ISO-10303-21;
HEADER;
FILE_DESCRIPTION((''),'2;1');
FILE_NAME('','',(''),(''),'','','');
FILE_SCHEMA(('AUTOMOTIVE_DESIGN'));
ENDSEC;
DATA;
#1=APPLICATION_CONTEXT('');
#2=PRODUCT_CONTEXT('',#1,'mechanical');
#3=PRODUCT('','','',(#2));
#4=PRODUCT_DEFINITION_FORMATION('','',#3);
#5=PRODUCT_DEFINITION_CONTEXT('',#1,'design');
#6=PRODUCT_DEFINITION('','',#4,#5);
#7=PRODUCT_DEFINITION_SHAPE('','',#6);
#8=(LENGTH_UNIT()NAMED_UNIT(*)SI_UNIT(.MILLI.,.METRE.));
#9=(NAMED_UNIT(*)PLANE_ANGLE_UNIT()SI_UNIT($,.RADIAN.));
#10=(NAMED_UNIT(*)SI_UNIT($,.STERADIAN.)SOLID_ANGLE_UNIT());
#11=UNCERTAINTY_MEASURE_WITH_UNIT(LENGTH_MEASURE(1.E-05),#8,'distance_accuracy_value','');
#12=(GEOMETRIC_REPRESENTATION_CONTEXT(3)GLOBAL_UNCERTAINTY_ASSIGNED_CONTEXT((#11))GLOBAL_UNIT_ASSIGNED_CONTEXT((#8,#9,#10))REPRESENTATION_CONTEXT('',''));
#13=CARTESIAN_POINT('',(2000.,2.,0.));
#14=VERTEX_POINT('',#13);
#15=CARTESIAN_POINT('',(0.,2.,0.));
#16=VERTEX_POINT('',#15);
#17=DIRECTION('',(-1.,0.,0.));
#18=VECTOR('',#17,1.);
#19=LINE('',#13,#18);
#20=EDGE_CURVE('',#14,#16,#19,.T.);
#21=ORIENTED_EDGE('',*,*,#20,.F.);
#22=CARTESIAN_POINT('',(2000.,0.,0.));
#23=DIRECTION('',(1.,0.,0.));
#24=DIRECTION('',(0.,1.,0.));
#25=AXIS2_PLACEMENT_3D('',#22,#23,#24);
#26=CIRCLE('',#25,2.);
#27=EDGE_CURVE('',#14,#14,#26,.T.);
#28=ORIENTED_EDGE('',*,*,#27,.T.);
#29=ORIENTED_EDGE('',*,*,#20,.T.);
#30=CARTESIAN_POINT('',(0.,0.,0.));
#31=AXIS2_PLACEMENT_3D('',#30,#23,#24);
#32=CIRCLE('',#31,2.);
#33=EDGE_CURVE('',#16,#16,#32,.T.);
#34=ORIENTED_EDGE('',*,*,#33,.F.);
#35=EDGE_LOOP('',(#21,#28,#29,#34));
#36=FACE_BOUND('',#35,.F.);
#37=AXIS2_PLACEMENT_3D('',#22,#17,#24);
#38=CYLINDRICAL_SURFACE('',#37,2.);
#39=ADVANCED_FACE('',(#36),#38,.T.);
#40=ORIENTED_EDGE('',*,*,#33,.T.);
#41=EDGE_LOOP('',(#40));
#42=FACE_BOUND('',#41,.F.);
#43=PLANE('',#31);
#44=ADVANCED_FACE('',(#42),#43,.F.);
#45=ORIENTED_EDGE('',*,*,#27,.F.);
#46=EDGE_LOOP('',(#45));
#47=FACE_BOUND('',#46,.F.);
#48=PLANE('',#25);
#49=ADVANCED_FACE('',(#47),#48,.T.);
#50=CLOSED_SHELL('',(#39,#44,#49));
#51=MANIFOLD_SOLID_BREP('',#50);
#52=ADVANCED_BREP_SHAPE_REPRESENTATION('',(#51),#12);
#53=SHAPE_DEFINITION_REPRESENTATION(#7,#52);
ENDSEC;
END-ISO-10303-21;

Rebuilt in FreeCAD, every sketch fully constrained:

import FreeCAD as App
import Part
import Sketcher
Q = App.Units.Quantity


def add_polygon(sketch, points):
    """Adds a closed chain of lines whose ends are joined by coincident constraints."""
    first, n = sketch.GeometryCount, len(points)
    for a, b in zip(points, points[1:] + points[:1]):
        sketch.addGeometry(Part.LineSegment(App.Vector(*a, 0), App.Vector(*b, 0)), False)
    for i in range(n):
        sketch.addConstraint(Sketcher.Constraint("Coincident", first + i, 2, first + (i + 1) % n, 1))

doc = App.newDocument("Part")
body = doc.addObject("PartDesign::Body", "Body")

# Sketch on XY plane
sketch1 = body.newObject("Sketcher::SketchObject", "Sketch")
sketch1.AttachmentSupport = (doc.getObject("XY_Plane"), [""])
sketch1.MapMode = "FlatFace"
add_polygon(sketch1, [(0, 2), (0, 0), (2000, 0), (2000, 2)])  # lines 0-3
sketch1.addConstraint([
    Sketcher.Constraint("Vertical", 0),
    Sketcher.Constraint("Horizontal", 1),
    Sketcher.Constraint("Vertical", 2),
    Sketcher.Constraint("Horizontal", 3),
    Sketcher.Constraint("Coincident", 0, 2, -1, 1),
    Sketcher.Constraint("DistanceX", 1, 1, 1, 2, Q("2000 mm")),
    Sketcher.Constraint("DistanceY", 0, 2, 0, 1, Q("2 mm")),
])
revolution = body.newObject("PartDesign::Revolution", "Revolution")
revolution.Profile = sketch1
revolution.ReferenceAxis = (sketch1, ["H_Axis"])
revolution.Angle = 360

doc.recompute()
